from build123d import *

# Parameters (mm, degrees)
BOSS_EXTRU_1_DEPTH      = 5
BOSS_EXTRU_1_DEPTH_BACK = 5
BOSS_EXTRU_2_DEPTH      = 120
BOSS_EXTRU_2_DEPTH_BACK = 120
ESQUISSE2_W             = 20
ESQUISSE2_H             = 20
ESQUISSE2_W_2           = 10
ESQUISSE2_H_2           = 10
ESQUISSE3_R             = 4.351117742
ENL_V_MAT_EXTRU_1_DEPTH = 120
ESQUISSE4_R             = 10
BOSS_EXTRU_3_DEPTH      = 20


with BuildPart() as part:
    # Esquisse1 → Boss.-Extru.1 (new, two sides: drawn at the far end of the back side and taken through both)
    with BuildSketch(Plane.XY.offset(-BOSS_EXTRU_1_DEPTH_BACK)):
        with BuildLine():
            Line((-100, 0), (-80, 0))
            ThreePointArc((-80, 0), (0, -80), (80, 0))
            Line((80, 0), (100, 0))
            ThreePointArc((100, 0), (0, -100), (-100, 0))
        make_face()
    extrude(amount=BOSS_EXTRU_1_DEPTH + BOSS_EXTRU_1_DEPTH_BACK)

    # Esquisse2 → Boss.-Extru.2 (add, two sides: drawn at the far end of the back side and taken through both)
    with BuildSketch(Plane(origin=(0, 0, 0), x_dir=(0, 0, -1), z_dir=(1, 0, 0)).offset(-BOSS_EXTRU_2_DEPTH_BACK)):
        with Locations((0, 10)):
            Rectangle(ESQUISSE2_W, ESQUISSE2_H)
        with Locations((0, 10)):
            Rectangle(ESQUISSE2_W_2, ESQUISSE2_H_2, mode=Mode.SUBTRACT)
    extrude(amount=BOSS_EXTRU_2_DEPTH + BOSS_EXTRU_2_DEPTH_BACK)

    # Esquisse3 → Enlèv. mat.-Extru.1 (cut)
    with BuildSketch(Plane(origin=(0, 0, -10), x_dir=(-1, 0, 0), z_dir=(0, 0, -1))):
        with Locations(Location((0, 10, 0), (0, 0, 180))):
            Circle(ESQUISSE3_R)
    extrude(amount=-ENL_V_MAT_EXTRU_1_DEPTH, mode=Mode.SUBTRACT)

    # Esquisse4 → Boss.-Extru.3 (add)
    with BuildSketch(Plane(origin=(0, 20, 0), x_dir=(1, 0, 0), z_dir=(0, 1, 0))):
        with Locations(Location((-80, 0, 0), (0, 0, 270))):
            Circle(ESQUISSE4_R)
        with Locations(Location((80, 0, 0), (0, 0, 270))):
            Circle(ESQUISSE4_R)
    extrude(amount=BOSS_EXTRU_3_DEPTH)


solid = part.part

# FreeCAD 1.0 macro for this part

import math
import FreeCAD as App
import Part
import Sketcher

V = App.Vector

doc = App.newDocument("Part")
params = doc.addObject("Spreadsheet::Sheet", "Params")
for row, (alias, value) in enumerate([
    ("sketch1_radius", "100 mm"),
    ("sketch1_radius2", "80 mm"),
    ("pad1_length", "5 mm"),
    ("pad1_length2", "5 mm"),
    ("sketch2_width", "20 mm"),
    ("sketch2_width2", "10 mm"),
    ("pad2_length", "120 mm"),
    ("pad2_length2", "120 mm"),
    ("pocket1_length", "120 mm"),
    ("sketch4_diameter", "20 mm"),
    ("pad3_length", "20 mm"),
], start=1):
    params.set(f"A{row}", alias)
    params.set(f"B{row}", "=" + value)
    params.setAlias(f"B{row}", alias)

body = doc.addObject("PartDesign::Body", "Body")

# Sketch on XY plane
sketch1 = body.newObject("Sketcher::SketchObject", "Sketch")
sketch1.AttachmentSupport = (doc.getObject("XY_Plane"), [""])
sketch1.MapMode = "FlatFace"
sketch1.addGeometry([
    Part.LineSegment(V(-80, 0, 0), V(-100, 0, 0)),
    Part.ArcOfCircle(Part.Circle(V(0, 0, 0), V(0, 0, 1), 100), math.radians(180), math.radians(360)),
    Part.LineSegment(V(100, 0, 0), V(80, 0, 0)),
    Part.ArcOfCircle(Part.Circle(V(0, 0, 0), V(0, 0, 1), 80), math.radians(180), math.radians(360)),
], False)
sketch1.addConstraint([
    Sketcher.Constraint("Coincident", 0, 2, 1, 1),
    Sketcher.Constraint("Coincident", 1, 2, 2, 1),
    Sketcher.Constraint("Coincident", 2, 2, 3, 2),
    Sketcher.Constraint("Coincident", 3, 1, 0, 1),
    Sketcher.Constraint("Horizontal", 0),
    Sketcher.Constraint("Horizontal", 2),
    Sketcher.Constraint("Coincident", 1, 3, -1, 1),
    Sketcher.Constraint("Coincident", 3, 3, -1, 1),
    Sketcher.Constraint("PointOnObject", 0, 2, -1),
    Sketcher.Constraint("PointOnObject", 1, 2, -1),
    Sketcher.Constraint("Radius", 1, 100.0),
    Sketcher.Constraint("Radius", 3, 80.0),
])
sketch1.setExpression("Constraints[10]", "Params.sketch1_radius")
sketch1.setExpression("Constraints[11]", "Params.sketch1_radius2")
pad1 = body.newObject("PartDesign::Pad", "Pad")
pad1.Profile = sketch1
pad1.Type = "TwoLengths"
pad1.setExpression("Length", "Params.pad1_length")
pad1.setExpression("Length2", "Params.pad1_length2")

# Sketch on YZ plane
sketch2 = body.newObject("Sketcher::SketchObject", "Sketch001")
sketch2.AttachmentSupport = (doc.getObject("YZ_Plane"), [""])
sketch2.MapMode = "FlatFace"
sketch2.addGeometry([
    Part.LineSegment(V(20, 10, 0), V(0, 10, 0)),  # 0
    Part.LineSegment(V(0, 10, 0), V(0, -10, 0)),  # 1
    Part.LineSegment(V(0, -10, 0), V(20, -10, 0)),  # 2
    Part.LineSegment(V(20, -10, 0), V(20, 10, 0)),  # 3
    Part.LineSegment(V(5, -5, 0), V(5, 5, 0)),  # 4
    Part.LineSegment(V(5, 5, 0), V(15, 5, 0)),  # 5
    Part.LineSegment(V(15, 5, 0), V(15, -5, 0)),  # 6
    Part.LineSegment(V(15, -5, 0), V(5, -5, 0)),  # 7
], False)
sketch2.addConstraint([
    Sketcher.Constraint("Coincident", 0, 2, 1, 1),
    Sketcher.Constraint("Coincident", 1, 2, 2, 1),
    Sketcher.Constraint("Coincident", 2, 2, 3, 1),
    Sketcher.Constraint("Coincident", 3, 2, 0, 1),
    Sketcher.Constraint("Coincident", 4, 2, 5, 1),
    Sketcher.Constraint("Coincident", 5, 2, 6, 1),
    Sketcher.Constraint("Coincident", 6, 2, 7, 1),
    Sketcher.Constraint("Coincident", 7, 2, 4, 1),
    Sketcher.Constraint("Horizontal", 0),
    Sketcher.Constraint("Vertical", 1),
    Sketcher.Constraint("Horizontal", 2),
    Sketcher.Constraint("Vertical", 3),
    Sketcher.Constraint("Vertical", 4),
    Sketcher.Constraint("Horizontal", 5),
    Sketcher.Constraint("Vertical", 6),
    Sketcher.Constraint("Horizontal", 7),
    Sketcher.Constraint("Symmetric", 0, 2, 1, 2, -1, 1),
    Sketcher.Constraint("Equal", 2, 1),
    Sketcher.Constraint("Equal", 7, 4),
    Sketcher.Constraint("DistanceX", 0, 2, 0, 1, 20.0),
    Sketcher.Constraint("DistanceX", 5, 1, 5, 2, 10.0),
    Sketcher.Constraint("DistanceX", -1, 1, 4, 2, 5.0),
    Sketcher.Constraint("DistanceY", -1, 1, 4, 2, 5.0),
])
sketch2.setExpression("Constraints[19]", "Params.sketch2_width")
sketch2.setExpression("Constraints[20]", "Params.sketch2_width2")
pad2 = body.newObject("PartDesign::Pad", "Pad001")
pad2.Profile = sketch2
pad2.Type = "TwoLengths"
pad2.setExpression("Length", "Params.pad2_length")
pad2.setExpression("Length2", "Params.pad2_length2")

# Sketch on XY plane
sketch3 = body.newObject("Sketcher::SketchObject", "Sketch002")
sketch3.AttachmentSupport = (doc.getObject("XY_Plane"), [""])
sketch3.MapMode = "FlatFace"
sketch3.AttachmentOffset = App.Placement(V(0, 0, -10), App.Rotation())
sketch3.addGeometry(Part.Circle(V(0, 10, 0), V(0, 0, 1), 4.4), False)
sketch3.addConstraint([
    Sketcher.Constraint("PointOnObject", 0, 3, -2),
    Sketcher.Constraint("DistanceY", -1, 1, 0, 3, 10.0),
    Sketcher.Constraint("Diameter", 0, 8.702235),
])
pocket1 = body.newObject("PartDesign::Pocket", "Pocket")
pocket1.Profile = sketch3
pocket1.setExpression("Length", "Params.pocket1_length")
pocket1.Reversed = True

# Sketch on XZ plane
sketch4 = body.newObject("Sketcher::SketchObject", "Sketch003")
sketch4.AttachmentSupport = (doc.getObject("XZ_Plane"), [""])
sketch4.MapMode = "FlatFace"
sketch4.AttachmentOffset = App.Placement(V(0, 0, -20), App.Rotation())
sketch4.addGeometry([
    Part.Circle(V(-80, 0, 0), V(0, 0, 1), 10),
    Part.Circle(V(80, 0, 0), V(0, 0, 1), 10),
], False)
sketch4.addConstraint([
    Sketcher.Constraint("Equal", 0, 1),
    Sketcher.Constraint("Symmetric", 0, 3, 1, 3, -1, 1),
    Sketcher.Constraint("PointOnObject", 0, 3, -1),
    Sketcher.Constraint("Diameter", 0, 20.0),
    Sketcher.Constraint("DistanceX", 0, 3, -1, 1, 80.0),
])
sketch4.setExpression("Constraints[3]", "Params.sketch4_diameter")
pad3 = body.newObject("PartDesign::Pad", "Pad002")
pad3.Profile = sketch4
pad3.setExpression("Length", "Params.pad3_length")
pad3.Reversed = True

doc.recompute()
